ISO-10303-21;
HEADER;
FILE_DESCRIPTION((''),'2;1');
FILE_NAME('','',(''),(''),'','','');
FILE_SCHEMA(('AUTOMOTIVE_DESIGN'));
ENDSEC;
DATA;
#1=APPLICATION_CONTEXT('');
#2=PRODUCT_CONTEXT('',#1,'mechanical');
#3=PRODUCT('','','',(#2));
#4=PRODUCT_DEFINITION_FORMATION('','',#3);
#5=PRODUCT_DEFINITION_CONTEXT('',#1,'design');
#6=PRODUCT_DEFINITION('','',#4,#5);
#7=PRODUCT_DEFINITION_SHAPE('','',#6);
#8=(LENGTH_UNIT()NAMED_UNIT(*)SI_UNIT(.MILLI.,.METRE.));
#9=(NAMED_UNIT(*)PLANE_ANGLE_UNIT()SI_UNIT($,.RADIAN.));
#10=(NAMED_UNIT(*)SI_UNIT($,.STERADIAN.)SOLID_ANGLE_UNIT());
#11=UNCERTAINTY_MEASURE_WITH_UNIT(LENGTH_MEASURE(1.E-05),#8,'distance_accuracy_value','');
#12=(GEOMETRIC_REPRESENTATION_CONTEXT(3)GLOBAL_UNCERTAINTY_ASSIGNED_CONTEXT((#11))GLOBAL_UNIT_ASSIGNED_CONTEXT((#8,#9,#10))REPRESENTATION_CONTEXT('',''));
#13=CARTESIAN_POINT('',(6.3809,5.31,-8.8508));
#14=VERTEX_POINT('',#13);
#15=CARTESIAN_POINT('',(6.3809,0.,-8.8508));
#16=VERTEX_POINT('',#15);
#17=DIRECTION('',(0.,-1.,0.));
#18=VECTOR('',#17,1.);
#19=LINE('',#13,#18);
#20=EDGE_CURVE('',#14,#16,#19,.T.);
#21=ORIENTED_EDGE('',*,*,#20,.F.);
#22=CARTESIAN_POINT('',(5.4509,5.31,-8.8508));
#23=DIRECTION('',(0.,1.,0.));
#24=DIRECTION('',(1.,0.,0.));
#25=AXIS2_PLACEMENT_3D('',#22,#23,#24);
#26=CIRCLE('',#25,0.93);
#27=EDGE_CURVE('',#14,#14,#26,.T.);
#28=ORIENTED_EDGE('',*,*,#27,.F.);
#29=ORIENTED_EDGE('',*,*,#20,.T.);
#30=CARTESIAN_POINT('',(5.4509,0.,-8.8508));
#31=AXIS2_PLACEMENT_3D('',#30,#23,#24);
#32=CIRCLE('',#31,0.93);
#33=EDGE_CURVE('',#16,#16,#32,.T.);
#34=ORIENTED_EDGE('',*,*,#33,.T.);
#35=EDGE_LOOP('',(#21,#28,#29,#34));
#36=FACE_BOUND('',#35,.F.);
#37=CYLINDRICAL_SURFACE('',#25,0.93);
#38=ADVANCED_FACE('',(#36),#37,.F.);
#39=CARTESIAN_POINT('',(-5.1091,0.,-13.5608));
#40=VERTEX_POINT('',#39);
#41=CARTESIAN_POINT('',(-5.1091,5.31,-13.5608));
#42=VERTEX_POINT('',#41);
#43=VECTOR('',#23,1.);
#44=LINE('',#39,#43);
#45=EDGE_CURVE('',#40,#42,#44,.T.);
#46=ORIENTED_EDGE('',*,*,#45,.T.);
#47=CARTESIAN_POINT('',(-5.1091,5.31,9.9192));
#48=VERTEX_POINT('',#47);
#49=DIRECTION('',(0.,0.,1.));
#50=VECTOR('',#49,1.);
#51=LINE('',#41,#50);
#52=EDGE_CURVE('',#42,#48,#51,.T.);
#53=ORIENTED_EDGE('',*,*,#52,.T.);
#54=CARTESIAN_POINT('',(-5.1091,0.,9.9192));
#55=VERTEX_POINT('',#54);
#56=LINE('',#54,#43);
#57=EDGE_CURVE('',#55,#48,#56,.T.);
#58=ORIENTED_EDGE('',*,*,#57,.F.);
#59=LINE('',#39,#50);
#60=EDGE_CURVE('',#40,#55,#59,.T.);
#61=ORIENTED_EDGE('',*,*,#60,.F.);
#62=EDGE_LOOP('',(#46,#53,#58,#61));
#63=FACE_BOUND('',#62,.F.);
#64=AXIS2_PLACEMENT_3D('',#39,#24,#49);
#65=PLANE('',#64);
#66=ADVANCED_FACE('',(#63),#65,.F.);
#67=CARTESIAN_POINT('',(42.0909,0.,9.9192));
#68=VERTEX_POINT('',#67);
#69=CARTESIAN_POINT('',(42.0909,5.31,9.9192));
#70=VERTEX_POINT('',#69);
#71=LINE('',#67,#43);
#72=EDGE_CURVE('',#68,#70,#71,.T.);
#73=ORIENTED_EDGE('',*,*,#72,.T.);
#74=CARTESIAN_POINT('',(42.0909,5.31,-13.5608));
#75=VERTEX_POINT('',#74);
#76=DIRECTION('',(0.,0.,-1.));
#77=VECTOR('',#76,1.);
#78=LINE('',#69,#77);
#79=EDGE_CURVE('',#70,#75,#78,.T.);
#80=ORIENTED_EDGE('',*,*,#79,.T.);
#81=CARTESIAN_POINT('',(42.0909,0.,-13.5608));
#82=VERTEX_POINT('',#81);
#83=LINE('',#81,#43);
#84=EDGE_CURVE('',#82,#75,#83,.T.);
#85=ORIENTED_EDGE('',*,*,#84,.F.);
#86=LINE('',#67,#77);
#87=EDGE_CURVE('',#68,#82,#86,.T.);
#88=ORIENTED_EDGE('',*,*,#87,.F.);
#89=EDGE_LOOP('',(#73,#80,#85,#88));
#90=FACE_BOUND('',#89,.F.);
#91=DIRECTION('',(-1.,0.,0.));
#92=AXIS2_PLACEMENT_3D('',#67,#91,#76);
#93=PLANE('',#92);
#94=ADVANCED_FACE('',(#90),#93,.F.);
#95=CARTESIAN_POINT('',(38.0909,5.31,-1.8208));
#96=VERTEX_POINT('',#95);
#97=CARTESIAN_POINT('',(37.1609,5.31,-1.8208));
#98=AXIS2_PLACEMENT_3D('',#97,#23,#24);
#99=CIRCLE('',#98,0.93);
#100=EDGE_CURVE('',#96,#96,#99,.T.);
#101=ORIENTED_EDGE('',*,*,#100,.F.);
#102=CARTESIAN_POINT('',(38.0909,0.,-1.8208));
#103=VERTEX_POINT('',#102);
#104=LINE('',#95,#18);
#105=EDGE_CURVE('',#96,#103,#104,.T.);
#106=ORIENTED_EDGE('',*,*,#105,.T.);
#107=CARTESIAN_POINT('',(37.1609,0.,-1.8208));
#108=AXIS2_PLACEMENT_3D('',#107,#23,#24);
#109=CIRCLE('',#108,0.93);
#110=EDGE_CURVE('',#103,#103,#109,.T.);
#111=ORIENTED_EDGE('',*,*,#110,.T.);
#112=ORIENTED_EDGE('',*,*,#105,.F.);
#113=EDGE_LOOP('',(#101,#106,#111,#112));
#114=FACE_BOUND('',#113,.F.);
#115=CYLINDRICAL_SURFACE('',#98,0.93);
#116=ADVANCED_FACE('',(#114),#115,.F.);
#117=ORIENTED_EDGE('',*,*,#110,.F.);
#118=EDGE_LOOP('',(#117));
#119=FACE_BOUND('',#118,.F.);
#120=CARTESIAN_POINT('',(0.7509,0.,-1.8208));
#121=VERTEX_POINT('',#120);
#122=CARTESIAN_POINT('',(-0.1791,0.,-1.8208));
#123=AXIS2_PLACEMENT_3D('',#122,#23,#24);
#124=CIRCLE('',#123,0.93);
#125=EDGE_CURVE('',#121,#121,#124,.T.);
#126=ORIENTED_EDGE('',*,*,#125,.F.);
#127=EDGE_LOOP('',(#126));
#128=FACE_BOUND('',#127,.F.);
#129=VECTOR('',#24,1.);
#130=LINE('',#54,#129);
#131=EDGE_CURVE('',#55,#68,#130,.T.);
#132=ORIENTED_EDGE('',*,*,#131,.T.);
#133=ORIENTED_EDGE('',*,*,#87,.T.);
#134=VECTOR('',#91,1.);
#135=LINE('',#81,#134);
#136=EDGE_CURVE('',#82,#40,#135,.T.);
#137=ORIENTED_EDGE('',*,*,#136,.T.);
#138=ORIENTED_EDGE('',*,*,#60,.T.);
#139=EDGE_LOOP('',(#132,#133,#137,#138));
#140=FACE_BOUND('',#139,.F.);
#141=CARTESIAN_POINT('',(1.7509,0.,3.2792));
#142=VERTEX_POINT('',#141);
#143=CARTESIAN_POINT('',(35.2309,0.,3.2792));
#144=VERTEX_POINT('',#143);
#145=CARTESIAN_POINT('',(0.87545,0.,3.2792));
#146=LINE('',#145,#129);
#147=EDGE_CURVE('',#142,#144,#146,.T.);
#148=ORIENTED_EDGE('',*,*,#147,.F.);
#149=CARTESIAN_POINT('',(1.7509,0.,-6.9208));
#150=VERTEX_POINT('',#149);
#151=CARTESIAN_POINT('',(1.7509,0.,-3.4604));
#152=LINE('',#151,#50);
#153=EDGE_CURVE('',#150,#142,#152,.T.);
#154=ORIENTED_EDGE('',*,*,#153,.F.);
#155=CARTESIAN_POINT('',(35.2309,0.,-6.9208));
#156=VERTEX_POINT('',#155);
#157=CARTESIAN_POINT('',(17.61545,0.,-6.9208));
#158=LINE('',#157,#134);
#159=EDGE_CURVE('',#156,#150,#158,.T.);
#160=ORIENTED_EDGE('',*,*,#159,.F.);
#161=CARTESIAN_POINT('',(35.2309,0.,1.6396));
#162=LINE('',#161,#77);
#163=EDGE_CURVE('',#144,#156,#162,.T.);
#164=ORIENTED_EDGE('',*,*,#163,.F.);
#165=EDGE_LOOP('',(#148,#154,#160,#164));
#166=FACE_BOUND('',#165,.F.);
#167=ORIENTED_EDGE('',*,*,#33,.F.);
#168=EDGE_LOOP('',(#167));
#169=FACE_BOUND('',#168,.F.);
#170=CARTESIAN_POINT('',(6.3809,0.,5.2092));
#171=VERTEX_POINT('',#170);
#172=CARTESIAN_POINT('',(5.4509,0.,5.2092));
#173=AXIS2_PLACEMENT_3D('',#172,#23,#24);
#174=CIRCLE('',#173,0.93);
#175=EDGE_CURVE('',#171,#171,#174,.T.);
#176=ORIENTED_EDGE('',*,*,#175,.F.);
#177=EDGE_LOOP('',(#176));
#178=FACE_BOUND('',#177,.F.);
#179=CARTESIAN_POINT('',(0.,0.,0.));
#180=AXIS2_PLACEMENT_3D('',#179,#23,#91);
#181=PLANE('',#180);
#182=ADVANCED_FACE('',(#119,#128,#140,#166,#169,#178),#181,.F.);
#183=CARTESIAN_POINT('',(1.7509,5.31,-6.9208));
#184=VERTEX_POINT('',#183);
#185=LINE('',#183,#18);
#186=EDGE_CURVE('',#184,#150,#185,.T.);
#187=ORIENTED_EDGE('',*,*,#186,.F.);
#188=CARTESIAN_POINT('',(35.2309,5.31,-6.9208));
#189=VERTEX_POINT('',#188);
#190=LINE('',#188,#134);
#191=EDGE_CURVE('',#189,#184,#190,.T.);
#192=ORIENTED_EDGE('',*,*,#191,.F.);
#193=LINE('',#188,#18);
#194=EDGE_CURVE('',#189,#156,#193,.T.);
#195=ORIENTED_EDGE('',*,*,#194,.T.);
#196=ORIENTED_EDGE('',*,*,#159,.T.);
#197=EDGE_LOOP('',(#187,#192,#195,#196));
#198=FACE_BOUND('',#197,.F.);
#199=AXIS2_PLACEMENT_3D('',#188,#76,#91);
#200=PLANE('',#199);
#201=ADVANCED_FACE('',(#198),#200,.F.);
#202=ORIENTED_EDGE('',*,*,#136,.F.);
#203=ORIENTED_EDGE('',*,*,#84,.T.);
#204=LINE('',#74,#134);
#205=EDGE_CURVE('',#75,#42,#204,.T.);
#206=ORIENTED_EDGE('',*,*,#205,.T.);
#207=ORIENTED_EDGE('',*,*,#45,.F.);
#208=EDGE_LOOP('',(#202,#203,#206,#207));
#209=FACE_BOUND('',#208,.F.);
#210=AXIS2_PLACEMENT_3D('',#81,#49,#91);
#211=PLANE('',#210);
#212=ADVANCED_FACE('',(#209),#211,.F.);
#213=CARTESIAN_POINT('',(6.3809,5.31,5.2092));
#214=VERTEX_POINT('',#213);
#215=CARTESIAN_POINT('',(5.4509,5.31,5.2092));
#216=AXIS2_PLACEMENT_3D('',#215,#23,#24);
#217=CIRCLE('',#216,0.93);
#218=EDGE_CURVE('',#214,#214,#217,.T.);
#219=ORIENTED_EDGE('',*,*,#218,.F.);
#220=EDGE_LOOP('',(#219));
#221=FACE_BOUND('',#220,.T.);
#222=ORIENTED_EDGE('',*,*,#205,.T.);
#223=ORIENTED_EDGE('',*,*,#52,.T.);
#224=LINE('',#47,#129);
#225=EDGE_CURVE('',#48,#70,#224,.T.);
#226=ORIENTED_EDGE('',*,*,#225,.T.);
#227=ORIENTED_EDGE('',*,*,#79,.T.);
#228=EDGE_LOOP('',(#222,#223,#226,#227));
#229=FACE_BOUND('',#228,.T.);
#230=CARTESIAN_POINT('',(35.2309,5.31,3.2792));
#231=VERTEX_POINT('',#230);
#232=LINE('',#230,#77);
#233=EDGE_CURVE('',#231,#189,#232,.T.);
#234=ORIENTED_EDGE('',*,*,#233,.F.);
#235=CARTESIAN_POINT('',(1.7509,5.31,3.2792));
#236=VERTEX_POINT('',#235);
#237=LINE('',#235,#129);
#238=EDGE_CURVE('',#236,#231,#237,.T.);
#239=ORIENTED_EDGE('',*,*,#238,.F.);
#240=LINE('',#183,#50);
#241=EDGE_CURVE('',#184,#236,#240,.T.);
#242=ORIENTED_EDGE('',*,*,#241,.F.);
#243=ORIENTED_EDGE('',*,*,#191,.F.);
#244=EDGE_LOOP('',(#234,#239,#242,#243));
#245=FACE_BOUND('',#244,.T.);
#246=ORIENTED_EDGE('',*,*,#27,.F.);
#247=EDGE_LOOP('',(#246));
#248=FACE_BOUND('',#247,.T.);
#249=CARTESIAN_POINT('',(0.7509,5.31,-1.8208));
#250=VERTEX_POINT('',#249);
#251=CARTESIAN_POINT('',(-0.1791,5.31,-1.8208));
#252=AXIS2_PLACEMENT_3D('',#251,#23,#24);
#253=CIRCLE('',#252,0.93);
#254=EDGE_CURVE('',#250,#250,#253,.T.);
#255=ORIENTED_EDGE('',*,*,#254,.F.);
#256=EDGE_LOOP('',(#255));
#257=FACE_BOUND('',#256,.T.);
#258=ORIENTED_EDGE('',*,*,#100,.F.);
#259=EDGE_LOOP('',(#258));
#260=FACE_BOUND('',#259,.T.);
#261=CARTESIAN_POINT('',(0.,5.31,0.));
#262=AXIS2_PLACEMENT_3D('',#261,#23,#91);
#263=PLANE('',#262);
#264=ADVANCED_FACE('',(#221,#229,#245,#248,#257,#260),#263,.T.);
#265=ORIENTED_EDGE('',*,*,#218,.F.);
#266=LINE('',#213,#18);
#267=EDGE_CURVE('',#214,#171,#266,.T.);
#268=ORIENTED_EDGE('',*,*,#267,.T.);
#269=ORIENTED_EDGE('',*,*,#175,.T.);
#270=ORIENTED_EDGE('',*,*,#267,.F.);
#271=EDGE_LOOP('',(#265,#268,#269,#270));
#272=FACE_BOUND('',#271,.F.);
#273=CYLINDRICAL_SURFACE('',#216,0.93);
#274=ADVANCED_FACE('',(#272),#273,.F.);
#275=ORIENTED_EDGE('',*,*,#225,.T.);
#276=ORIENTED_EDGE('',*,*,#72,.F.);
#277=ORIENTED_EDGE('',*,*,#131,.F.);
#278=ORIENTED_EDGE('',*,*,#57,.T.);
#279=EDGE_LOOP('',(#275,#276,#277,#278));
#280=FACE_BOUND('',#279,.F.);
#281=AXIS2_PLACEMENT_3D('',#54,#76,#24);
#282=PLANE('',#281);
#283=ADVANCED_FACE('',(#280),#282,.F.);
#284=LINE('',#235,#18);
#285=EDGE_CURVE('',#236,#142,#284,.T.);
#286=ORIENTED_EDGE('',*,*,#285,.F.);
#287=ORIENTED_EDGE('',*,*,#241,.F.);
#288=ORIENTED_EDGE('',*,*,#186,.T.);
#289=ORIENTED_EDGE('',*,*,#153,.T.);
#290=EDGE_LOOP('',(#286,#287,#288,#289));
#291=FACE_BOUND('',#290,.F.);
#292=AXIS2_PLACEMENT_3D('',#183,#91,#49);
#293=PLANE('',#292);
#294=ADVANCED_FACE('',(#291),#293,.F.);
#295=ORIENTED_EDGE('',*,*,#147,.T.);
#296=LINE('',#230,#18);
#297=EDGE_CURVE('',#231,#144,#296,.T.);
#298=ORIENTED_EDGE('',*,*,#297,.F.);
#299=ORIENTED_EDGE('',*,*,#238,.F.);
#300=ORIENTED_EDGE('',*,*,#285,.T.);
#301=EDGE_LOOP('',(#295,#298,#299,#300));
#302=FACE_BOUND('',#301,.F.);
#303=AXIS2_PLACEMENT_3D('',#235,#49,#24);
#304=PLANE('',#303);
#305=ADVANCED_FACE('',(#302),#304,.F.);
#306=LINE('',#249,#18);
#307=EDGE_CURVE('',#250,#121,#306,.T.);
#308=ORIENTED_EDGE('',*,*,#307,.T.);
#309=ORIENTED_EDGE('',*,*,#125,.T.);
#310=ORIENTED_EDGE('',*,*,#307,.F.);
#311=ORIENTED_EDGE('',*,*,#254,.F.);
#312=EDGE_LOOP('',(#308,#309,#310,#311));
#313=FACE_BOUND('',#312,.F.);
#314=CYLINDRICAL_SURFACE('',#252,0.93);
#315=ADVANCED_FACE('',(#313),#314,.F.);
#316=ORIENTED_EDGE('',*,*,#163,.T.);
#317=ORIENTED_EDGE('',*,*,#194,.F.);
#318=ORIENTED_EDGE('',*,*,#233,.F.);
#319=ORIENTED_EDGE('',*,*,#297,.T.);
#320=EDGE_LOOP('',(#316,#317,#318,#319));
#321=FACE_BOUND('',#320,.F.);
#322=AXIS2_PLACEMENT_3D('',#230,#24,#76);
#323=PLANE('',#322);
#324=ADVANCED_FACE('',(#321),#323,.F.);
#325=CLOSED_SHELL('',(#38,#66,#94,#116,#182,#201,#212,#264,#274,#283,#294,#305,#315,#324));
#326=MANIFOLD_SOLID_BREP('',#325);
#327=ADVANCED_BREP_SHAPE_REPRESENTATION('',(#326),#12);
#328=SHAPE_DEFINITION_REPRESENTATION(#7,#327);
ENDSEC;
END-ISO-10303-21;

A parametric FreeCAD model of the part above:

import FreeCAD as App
import Part
import Sketcher
from FreeCAD import Vector
Q = App.Units.Quantity


def add_polygon(sketch, points):
    """Adds a closed chain of lines whose ends are joined by coincident constraints."""
    first, n = sketch.GeometryCount, len(points)
    for a, b in zip(points, points[1:] + points[:1]):
        sketch.addGeometry(Part.LineSegment(App.Vector(*a, 0), App.Vector(*b, 0)), False)
    for i in range(n):
        sketch.addConstraint(Sketcher.Constraint("Coincident", first + i, 2, first + (i + 1) % n, 1))

doc = App.newDocument("Part")
params = doc.addObject("Spreadsheet::Sheet", "Params")
for row, (alias, value) in enumerate([
    ("sketch1_width", "47.2 mm"),
    ("sketch1_height", "23.48 mm"),
    ("pad1_length", "5.31 mm"),
    ("sketch2_diameter", "1.86 mm"),
    ("sketch3_height", "10.2 mm"),
    ("sketch3_width", "33.48 mm"),
], start=1):
    params.set(f"A{row}", alias)
    params.set(f"B{row}", "=" + value)
    params.setAlias(f"B{row}", alias)

body = doc.addObject("PartDesign::Body", "Body")

# Sketch on XZ plane
sketch1 = doc.addObject("Sketcher::SketchObject", "Sketch")
body.addObject(sketch1)
sketch1.AttachmentSupport = (doc.XZ_Plane, [""])
sketch1.MapMode = "FlatFace"
add_polygon(sketch1, [(-5, -14), (-5, 10), (42, 10), (42, -14)])  # lines 0-3
sketch1.addConstraint([
    Sketcher.Constraint("Vertical", 0),
    Sketcher.Constraint("Horizontal", 1),
    Sketcher.Constraint("Vertical", 2),
    Sketcher.Constraint("Horizontal", 3),
    Sketcher.Constraint("DistanceX", 1, 1, 1, 2, Q("47.2 mm")),
    Sketcher.Constraint("DistanceY", 0, 1, 0, 2, Q("23.48 mm")),
    Sketcher.Constraint("DistanceX", 0, 2, -1, 1, Q("5.109 mm")),
    Sketcher.Constraint("DistanceY", -1, 1, 0, 2, Q("9.9192 mm")),
])
sketch1.setExpression("Constraints[8]", "Params.sketch1_width")
sketch1.setExpression("Constraints[9]", "Params.sketch1_height")
pad1 = doc.addObject("PartDesign::Pad", "Pad")
body.addObject(pad1)
pad1.Profile = sketch1
pad1.setExpression("Length", "Params.pad1_length")
pad1.Reversed = True

# Sketch on XZ plane
sketch2 = doc.addObject("Sketcher::SketchObject", "Sketch001")
body.addObject(sketch2)
sketch2.AttachmentSupport = (doc.XZ_Plane, [""])
sketch2.MapMode = "FlatFace"
sketch2.AttachmentOffset = App.Placement(Vector(0, 0, -5.31), App.Rotation())
sketch2.addGeometry([
    Part.Circle(Vector(-0.2, -1.8, 0), Vector(0, 0, 1), 0.9),
    Part.Circle(Vector(5.5, 5.2, 0), Vector(0, 0, 1), 0.9),
    Part.Circle(Vector(5.5, -8.9, 0), Vector(0, 0, 1), 0.9),
    Part.Circle(Vector(37.2, -1.8, 0), Vector(0, 0, 1), 0.9),
], False)
sketch2.addConstraint([
    Sketcher.Constraint("Equal", 0, 1),
    Sketcher.Constraint("Equal", 1, 2),
    Sketcher.Constraint("Equal", 2, 3),
    Sketcher.Constraint("Horizontal", 0, 3, 3, 3),
    Sketcher.Constraint("Vertical", 1, 3, 2, 3),
    Sketcher.Constraint("Diameter", 0, Q("1.86 mm")),
    Sketcher.Constraint("DistanceX", 0, 3, 1, 3, Q("5.63 mm")),
    Sketcher.Constraint("DistanceY", 2, 3, 1, 3, Q("14.06 mm")),
    Sketcher.Constraint("DistanceX", 0, 3, 3, 3, Q("37.34 mm")),
    Sketcher.Constraint("DistanceY", 0, 3, 1, 3, Q("7.03 mm")),
    Sketcher.Constraint("DistanceX", 0, 3, -1, 1, Q("0.179 mm")),
    Sketcher.Constraint("DistanceY", 0, 3, -1, 1, Q("1.8208 mm")),
])
sketch2.setExpression("Constraints[5]", "Params.sketch2_diameter")
pocket1 = doc.addObject("PartDesign::Pocket", "Pocket")
body.addObject(pocket1)
pocket1.Profile = sketch2
pocket1.Type = "ThroughAll"
pocket1.Reversed = True

# Sketch on XZ plane
sketch3 = doc.addObject("Sketcher::SketchObject", "Sketch002")
body.addObject(sketch3)
sketch3.AttachmentSupport = (doc.XZ_Plane, [""])
sketch3.MapMode = "FlatFace"
sketch3.AttachmentOffset = App.Placement(Vector(0, 0, -5.31), App.Rotation())
add_polygon(sketch3, [(2, -7), (2, 3), (35, 3), (35, -7)])  # lines 0-3
sketch3.addConstraint([
    Sketcher.Constraint("Vertical", 0),
    Sketcher.Constraint("Horizontal", 1),
    Sketcher.Constraint("Vertical", 2),
    Sketcher.Constraint("Horizontal", 3),
    Sketcher.Constraint("DistanceY", 0, 1, 0, 2, Q("10.2 mm")),
    Sketcher.Constraint("DistanceX", 1, 1, 1, 2, Q("33.48 mm")),
    Sketcher.Constraint("DistanceX", -1, 1, 0, 2, Q("1.751 mm")),
    Sketcher.Constraint("DistanceY", -1, 1, 0, 2, Q("3.2792 mm")),
])
sketch3.setExpression("Constraints[8]", "Params.sketch3_height")
sketch3.setExpression("Constraints[9]", "Params.sketch3_width")
pocket2 = doc.addObject("PartDesign::Pocket", "Pocket001")
body.addObject(pocket2)
pocket2.Profile = sketch3
pocket2.Type = "ThroughAll"
pocket2.Reversed = True

doc.recompute()
